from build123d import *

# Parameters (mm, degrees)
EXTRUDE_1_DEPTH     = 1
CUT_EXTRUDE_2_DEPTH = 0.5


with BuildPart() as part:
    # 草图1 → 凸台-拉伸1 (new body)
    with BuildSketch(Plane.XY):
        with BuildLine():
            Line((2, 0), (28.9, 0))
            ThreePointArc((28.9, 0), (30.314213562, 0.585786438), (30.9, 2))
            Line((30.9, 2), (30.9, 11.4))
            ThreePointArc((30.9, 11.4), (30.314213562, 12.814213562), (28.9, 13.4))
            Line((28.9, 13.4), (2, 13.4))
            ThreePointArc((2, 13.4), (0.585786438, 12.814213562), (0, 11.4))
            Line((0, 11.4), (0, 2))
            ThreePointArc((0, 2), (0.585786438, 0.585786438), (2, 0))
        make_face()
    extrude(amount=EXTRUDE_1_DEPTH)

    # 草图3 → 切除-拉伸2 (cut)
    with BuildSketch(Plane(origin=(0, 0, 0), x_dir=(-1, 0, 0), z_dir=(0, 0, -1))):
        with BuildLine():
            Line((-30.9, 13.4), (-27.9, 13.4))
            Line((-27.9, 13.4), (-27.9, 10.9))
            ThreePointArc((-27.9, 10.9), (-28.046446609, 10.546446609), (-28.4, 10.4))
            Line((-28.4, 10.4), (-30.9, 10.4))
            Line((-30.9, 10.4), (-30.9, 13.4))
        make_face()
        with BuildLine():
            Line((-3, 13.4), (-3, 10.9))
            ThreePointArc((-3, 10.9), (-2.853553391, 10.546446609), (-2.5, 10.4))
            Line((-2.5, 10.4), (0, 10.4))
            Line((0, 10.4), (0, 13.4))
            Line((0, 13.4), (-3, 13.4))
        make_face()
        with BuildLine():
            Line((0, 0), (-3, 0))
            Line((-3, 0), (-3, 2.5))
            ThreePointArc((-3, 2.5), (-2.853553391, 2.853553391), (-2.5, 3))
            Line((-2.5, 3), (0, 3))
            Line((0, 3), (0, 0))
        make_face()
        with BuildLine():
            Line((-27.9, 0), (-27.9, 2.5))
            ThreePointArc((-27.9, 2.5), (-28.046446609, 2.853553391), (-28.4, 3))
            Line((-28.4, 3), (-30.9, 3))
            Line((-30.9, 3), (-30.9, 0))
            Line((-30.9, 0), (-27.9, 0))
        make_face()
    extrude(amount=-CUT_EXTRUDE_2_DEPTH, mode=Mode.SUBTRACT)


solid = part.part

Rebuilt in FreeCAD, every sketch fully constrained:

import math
import FreeCAD as App
import Part
import Sketcher
Q = App.Units.Quantity

doc = App.newDocument("Part")
body = doc.addObject("PartDesign::Body", "Body")

# Sketch on XY plane
sketch1 = doc.addObject("Sketcher::SketchObject", "Sketch")
body.addObject(sketch1)
sketch1.AttachmentSupport = (doc.XY_Plane, [""])
sketch1.MapMode = "FlatFace"
sketch1.addGeometry(Part.LineSegment(App.Vector(2, 0, 0), App.Vector(28.9, 0, 0)), False)
sketch1.addGeometry(Part.ArcOfCircle(Part.Circle(App.Vector(28.9, 2, 0), App.Vector(0, 0, 1), 2), math.radians(-90), math.radians(0)), False)
sketch1.addGeometry(Part.LineSegment(App.Vector(30.9, 2, 0), App.Vector(30.9, 11.4, 0)), False)
sketch1.addGeometry(Part.ArcOfCircle(Part.Circle(App.Vector(28.9, 11.4, 0), App.Vector(0, 0, 1), 2), math.radians(0), math.radians(90)), False)
sketch1.addGeometry(Part.LineSegment(App.Vector(28.9, 13.4, 0), App.Vector(2, 13.4, 0)), False)
sketch1.addGeometry(Part.ArcOfCircle(Part.Circle(App.Vector(2, 11.4, 0), App.Vector(0, 0, 1), 2), math.radians(90), math.radians(180)), False)
sketch1.addGeometry(Part.LineSegment(App.Vector(0, 11.4, 0), App.Vector(0, 2, 0)), False)
sketch1.addGeometry(Part.ArcOfCircle(Part.Circle(App.Vector(2, 2, 0), App.Vector(0, 0, 1), 2), math.radians(-180), math.radians(-90)), False)
sketch1.addConstraint(Sketcher.Constraint("Tangent", 0, 2, 1, 1))
sketch1.addConstraint(Sketcher.Constraint("Tangent", 1, 2, 2, 1))
sketch1.addConstraint(Sketcher.Constraint("Tangent", 2, 2, 3, 1))
sketch1.addConstraint(Sketcher.Constraint("Tangent", 3, 2, 4, 1))
sketch1.addConstraint(Sketcher.Constraint("Tangent", 4, 2, 5, 1))
sketch1.addConstraint(Sketcher.Constraint("Tangent", 5, 2, 6, 1))
sketch1.addConstraint(Sketcher.Constraint("Tangent", 6, 2, 7, 1))
sketch1.addConstraint(Sketcher.Constraint("Tangent", 7, 2, 0, 1))
sketch1.addConstraint(Sketcher.Constraint("Horizontal", 0))
sketch1.addConstraint(Sketcher.Constraint("Vertical", 2))
sketch1.addConstraint(Sketcher.Constraint("Horizontal", 4))
sketch1.addConstraint(Sketcher.Constraint("Vertical", 6))
sketch1.addConstraint(Sketcher.Constraint("Equal", 1, 3))
sketch1.addConstraint(Sketcher.Constraint("Equal", 3, 5))
sketch1.addConstraint(Sketcher.Constraint("Equal", 5, 7))
sketch1.addConstraint(Sketcher.Constraint("PointOnObject", 0, 2, -1))
sketch1.addConstraint(Sketcher.Constraint("PointOnObject", 5, 2, -2))
sketch1.addConstraint(Sketcher.Constraint("Radius", 1, Q("2 mm")))
sketch1.addConstraint(Sketcher.Constraint("DistanceX", 0, 1, 0, 2, Q("26.9 mm")))
sketch1.addConstraint(Sketcher.Constraint("DistanceY", 2, 1, 2, 2, Q("9.4 mm")))
pad1 = doc.addObject("PartDesign::Pad", "Pad")
body.addObject(pad1)
pad1.Profile = sketch1
pad1.Length = 1

# Sketch on XY plane
sketch2 = doc.addObject("Sketcher::SketchObject", "Sketch001")
body.addObject(sketch2)
sketch2.AttachmentSupport = (doc.XY_Plane, [""])
sketch2.MapMode = "FlatFace"
sketch2.addGeometry(Part.LineSegment(App.Vector(27.9, 13.4, 0), App.Vector(30.9, 13.4, 0)), False)
sketch2.addGeometry(Part.LineSegment(App.Vector(30.9, 13.4, 0), App.Vector(30.9, 10.4, 0)), False)
sketch2.addGeometry(Part.LineSegment(App.Vector(30.9, 10.4, 0), App.Vector(28.4, 10.4, 0)), False)
sketch2.addGeometry(Part.ArcOfCircle(Part.Circle(App.Vector(28.4, 10.9, 0), App.Vector(0, 0, 1), 0.5), math.radians(180), math.radians(270)), False)
sketch2.addGeometry(Part.LineSegment(App.Vector(27.9, 10.9, 0), App.Vector(27.9, 13.4, 0)), False)
sketch2.addGeometry(Part.LineSegment(App.Vector(3, 13.4, 0), App.Vector(3, 10.9, 0)), False)
sketch2.addGeometry(Part.ArcOfCircle(Part.Circle(App.Vector(2.5, 10.9, 0), App.Vector(0, 0, 1), 0.5), math.radians(-90), math.radians(0)), False)
sketch2.addGeometry(Part.LineSegment(App.Vector(2.5, 10.4, 0), App.Vector(0, 10.4, 0)), False)
sketch2.addGeometry(Part.LineSegment(App.Vector(0, 10.4, 0), App.Vector(0, 13.4, 0)), False)
sketch2.addGeometry(Part.LineSegment(App.Vector(0, 13.4, 0), App.Vector(3, 13.4, 0)), False)
sketch2.addGeometry(Part.LineSegment(App.Vector(3, 0, 0), App.Vector(0, 0, 0)), False)
sketch2.addGeometry(Part.LineSegment(App.Vector(0, 0, 0), App.Vector(0, 3, 0)), False)
sketch2.addGeometry(Part.LineSegment(App.Vector(0, 3, 0), App.Vector(2.5, 3, 0)), False)
sketch2.addGeometry(Part.ArcOfCircle(Part.Circle(App.Vector(2.5, 2.5, 0), App.Vector(0, 0, 1), 0.5), math.radians(0), math.radians(90)), False)
sketch2.addGeometry(Part.LineSegment(App.Vector(3, 2.5, 0), App.Vector(3, 0, 0)), False)
sketch2.addGeometry(Part.LineSegment(App.Vector(27.9, 0, 0), App.Vector(27.9, 2.5, 0)), False)
sketch2.addGeometry(Part.ArcOfCircle(Part.Circle(App.Vector(28.4, 2.5, 0), App.Vector(0, 0, 1), 0.5), math.radians(90), math.radians(180)), False)
sketch2.addGeometry(Part.LineSegment(App.Vector(28.4, 3, 0), App.Vector(30.9, 3, 0)), False)
sketch2.addGeometry(Part.LineSegment(App.Vector(30.9, 3, 0), App.Vector(30.9, 0, 0)), False)
sketch2.addGeometry(Part.LineSegment(App.Vector(30.9, 0, 0), App.Vector(27.9, 0, 0)), False)
sketch2.addConstraint(Sketcher.Constraint("Coincident", 0, 2, 1, 1))
sketch2.addConstraint(Sketcher.Constraint("Coincident", 1, 2, 2, 1))
sketch2.addConstraint(Sketcher.Constraint("Tangent", 2, 2, 3, 2))
sketch2.addConstraint(Sketcher.Constraint("Tangent", 3, 1, 4, 1))
sketch2.addConstraint(Sketcher.Constraint("Coincident", 4, 2, 0, 1))
sketch2.addConstraint(Sketcher.Constraint("Tangent", 5, 2, 6, 2))
sketch2.addConstraint(Sketcher.Constraint("Tangent", 6, 1, 7, 1))
sketch2.addConstraint(Sketcher.Constraint("Coincident", 7, 2, 8, 1))
sketch2.addConstraint(Sketcher.Constraint("Coincident", 8, 2, 9, 1))
sketch2.addConstraint(Sketcher.Constraint("Coincident", 9, 2, 5, 1))
sketch2.addConstraint(Sketcher.Constraint("Coincident", 10, 2, 11, 1))
sketch2.addConstraint(Sketcher.Constraint("Coincident", 11, 2, 12, 1))
sketch2.addConstraint(Sketcher.Constraint("Tangent", 12, 2, 13, 2))
sketch2.addConstraint(Sketcher.Constraint("Tangent", 13, 1, 14, 1))
sketch2.addConstraint(Sketcher.Constraint("Coincident", 14, 2, 10, 1))
sketch2.addConstraint(Sketcher.Constraint("Tangent", 15, 2, 16, 2))
sketch2.addConstraint(Sketcher.Constraint("Tangent", 16, 1, 17, 1))
sketch2.addConstraint(Sketcher.Constraint("Coincident", 17, 2, 18, 1))
sketch2.addConstraint(Sketcher.Constraint("Coincident", 18, 2, 19, 1))
sketch2.addConstraint(Sketcher.Constraint("Coincident", 19, 2, 15, 1))
sketch2.addConstraint(Sketcher.Constraint("Horizontal", 0))
sketch2.addConstraint(Sketcher.Constraint("Vertical", 1))
sketch2.addConstraint(Sketcher.Constraint("Horizontal", 2))
sketch2.addConstraint(Sketcher.Constraint("Vertical", 4))
sketch2.addConstraint(Sketcher.Constraint("Vertical", 5))
sketch2.addConstraint(Sketcher.Constraint("Horizontal", 7))
sketch2.addConstraint(Sketcher.Constraint("Vertical", 8))
sketch2.addConstraint(Sketcher.Constraint("Horizontal", 9))
sketch2.addConstraint(Sketcher.Constraint("Horizontal", 10))
sketch2.addConstraint(Sketcher.Constraint("Vertical", 11))
sketch2.addConstraint(Sketcher.Constraint("Horizontal", 12))
sketch2.addConstraint(Sketcher.Constraint("Vertical", 14))
sketch2.addConstraint(Sketcher.Constraint("Vertical", 15))
sketch2.addConstraint(Sketcher.Constraint("Horizontal", 17))
sketch2.addConstraint(Sketcher.Constraint("Vertical", 18))
sketch2.addConstraint(Sketcher.Constraint("Horizontal", 19))
sketch2.addConstraint(Sketcher.Constraint("Coincident", 10, 2, -1, 1))
sketch2.addConstraint(Sketcher.Constraint("Equal", 3, 6))
sketch2.addConstraint(Sketcher.Constraint("Equal", 6, 13))
sketch2.addConstraint(Sketcher.Constraint("Equal", 13, 16))
sketch2.addConstraint(Sketcher.Constraint("PointOnObject", 7, 2, -2))
sketch2.addConstraint(Sketcher.Constraint("PointOnObject", 18, 2, -1))
sketch2.addConstraint(Sketcher.Constraint("Horizontal", 3, 3, 6, 3))
sketch2.addConstraint(Sketcher.Constraint("Horizontal", 13, 3, 16, 3))
sketch2.addConstraint(Sketcher.Constraint("Horizontal", 4, 2, 8, 2))
sketch2.addConstraint(Sketcher.Constraint("Vertical", 6, 3, 13, 3))
sketch2.addConstraint(Sketcher.Constraint("Vertical", 3, 3, 16, 3))
sketch2.addConstraint(Sketcher.Constraint("Vertical", 1, 2, 17, 2))
sketch2.addConstraint(Sketcher.Constraint("Equal", 2, 7))
sketch2.addConstraint(Sketcher.Constraint("Equal", 19, 1))
sketch2.addConstraint(Sketcher.Constraint("Equal", 8, 11))
sketch2.addConstraint(Sketcher.Constraint("Radius", 3, Q("0.5 mm")))
sketch2.addConstraint(Sketcher.Constraint("DistanceX", 0, 1, 0, 2, Q("3 mm")))
sketch2.addConstraint(Sketcher.Constraint("DistanceX", -1, 1, 3, 3, Q("28.4 mm")))
sketch2.addConstraint(Sketcher.Constraint("DistanceY", -1, 1, 3, 3, Q("10.9 mm")))
pocket1 = doc.addObject("PartDesign::Pocket", "Pocket")
body.addObject(pocket1)
pocket1.Profile = sketch2
pocket1.Length = 0.5
pocket1.Reversed = True

doc.recompute()
